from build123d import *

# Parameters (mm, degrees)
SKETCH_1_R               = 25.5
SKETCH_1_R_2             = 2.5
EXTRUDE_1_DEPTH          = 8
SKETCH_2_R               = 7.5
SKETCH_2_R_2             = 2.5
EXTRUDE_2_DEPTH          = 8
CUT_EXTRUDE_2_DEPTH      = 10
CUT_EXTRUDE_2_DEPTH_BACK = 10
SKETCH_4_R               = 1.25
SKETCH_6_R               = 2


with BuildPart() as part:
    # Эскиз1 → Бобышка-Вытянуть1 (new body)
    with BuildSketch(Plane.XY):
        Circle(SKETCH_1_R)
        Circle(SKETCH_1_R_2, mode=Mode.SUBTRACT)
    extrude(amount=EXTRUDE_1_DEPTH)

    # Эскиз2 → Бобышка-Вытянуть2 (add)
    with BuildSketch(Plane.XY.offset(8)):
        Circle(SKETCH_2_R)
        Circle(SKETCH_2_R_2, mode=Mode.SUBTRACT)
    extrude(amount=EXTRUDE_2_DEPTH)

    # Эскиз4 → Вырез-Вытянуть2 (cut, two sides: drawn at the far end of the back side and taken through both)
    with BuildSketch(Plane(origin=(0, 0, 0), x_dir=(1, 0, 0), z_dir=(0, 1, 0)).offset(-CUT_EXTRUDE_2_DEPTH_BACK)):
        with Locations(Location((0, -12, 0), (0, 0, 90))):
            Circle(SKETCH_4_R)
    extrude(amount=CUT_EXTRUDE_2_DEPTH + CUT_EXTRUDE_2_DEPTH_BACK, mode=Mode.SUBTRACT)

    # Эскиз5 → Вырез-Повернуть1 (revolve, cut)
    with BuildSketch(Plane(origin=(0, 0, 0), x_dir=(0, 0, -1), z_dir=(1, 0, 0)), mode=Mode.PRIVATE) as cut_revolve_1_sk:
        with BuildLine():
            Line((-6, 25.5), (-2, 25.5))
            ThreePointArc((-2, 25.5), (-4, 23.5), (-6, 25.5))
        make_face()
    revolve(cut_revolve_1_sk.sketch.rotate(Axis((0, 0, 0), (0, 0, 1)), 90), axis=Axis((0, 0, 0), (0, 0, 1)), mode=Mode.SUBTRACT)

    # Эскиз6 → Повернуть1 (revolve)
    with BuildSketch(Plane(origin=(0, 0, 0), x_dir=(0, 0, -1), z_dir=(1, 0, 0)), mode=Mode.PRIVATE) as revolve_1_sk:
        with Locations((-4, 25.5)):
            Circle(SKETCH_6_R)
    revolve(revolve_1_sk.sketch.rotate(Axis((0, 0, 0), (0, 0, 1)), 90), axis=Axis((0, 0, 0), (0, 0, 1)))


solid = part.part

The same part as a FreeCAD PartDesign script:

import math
import FreeCAD as App
import Part
import Sketcher

V = App.Vector

doc = App.newDocument("Part")
body = doc.addObject("PartDesign::Body", "Body")

# Sketch on XY plane
sketch1 = body.newObject("Sketcher::SketchObject", "Sketch")
sketch1.AttachmentSupport = (doc.getObject("XY_Plane"), [""])
sketch1.MapMode = "FlatFace"
sketch1.addGeometry(Part.Circle(V(0, 0, 0), V(0, 0, 1), 25.5), False)
sketch1.addGeometry(Part.Circle(V(0, 0, 0), V(0, 0, 1), 2.5), False)
sketch1.addConstraint(Sketcher.Constraint("Coincident", 0, 3, -1, 1))
sketch1.addConstraint(Sketcher.Constraint("Coincident", 1, 3, -1, 1))
sketch1.addConstraint(Sketcher.Constraint("Diameter", 0, 51.0))
sketch1.addConstraint(Sketcher.Constraint("Diameter", 1, 5.0))
pad1 = body.newObject("PartDesign::Pad", "Pad")
pad1.Profile = sketch1
pad1.Length = 8

# Sketch on XY plane
sketch2 = body.newObject("Sketcher::SketchObject", "Sketch001")
sketch2.AttachmentSupport = (doc.getObject("XY_Plane"), [""])
sketch2.MapMode = "FlatFace"
sketch2.AttachmentOffset = App.Placement(V(0, 0, 8), App.Rotation())
sketch2.addGeometry(Part.Circle(V(0, 0, 0), V(0, 0, 1), 7.5), False)
sketch2.addGeometry(Part.Circle(V(0, 0, 0), V(0, 0, 1), 2.5), False)
sketch2.addConstraint(Sketcher.Constraint("Coincident", 0, 3, -1, 1))
sketch2.addConstraint(Sketcher.Constraint("Coincident", 1, 3, -1, 1))
sketch2.addConstraint(Sketcher.Constraint("Diameter", 0, 15.0))
sketch2.addConstraint(Sketcher.Constraint("Diameter", 1, 5.0))
pad2 = body.newObject("PartDesign::Pad", "Pad001")
pad2.Profile = sketch2
pad2.Length = 8

# Sketch on XZ plane
sketch3 = body.newObject("Sketcher::SketchObject", "Sketch002")
sketch3.AttachmentSupport = (doc.getObject("XZ_Plane"), [""])
sketch3.MapMode = "FlatFace"
sketch3.addGeometry(Part.Circle(V(0, 12, 0), V(0, 0, 1), 1.2), False)
sketch3.addConstraint(Sketcher.Constraint("PointOnObject", 0, 3, -2))
sketch3.addConstraint(Sketcher.Constraint("Diameter", 0, 2.5))
sketch3.addConstraint(Sketcher.Constraint("DistanceY", -1, 1, 0, 3, 12.0))
pocket1 = body.newObject("PartDesign::Pocket", "Pocket")
pocket1.Profile = sketch3
pocket1.Type = "ThroughAll"
pocket1.Midplane = True

# Sketch on YZ plane
sketch4 = body.newObject("Sketcher::SketchObject", "Sketch003")
sketch4.AttachmentSupport = (doc.getObject("YZ_Plane"), [""])
sketch4.MapMode = "FlatFace"
sketch4.addGeometry(Part.LineSegment(V(25.5, 2, 0), V(25.5, 6, 0)), False)
sketch4.addGeometry(Part.ArcOfCircle(Part.Circle(V(25.5, 4, 0), V(0, 0, 1), 2), math.radians(90), math.radians(270)), False)
sketch4.addConstraint(Sketcher.Constraint("Coincident", 0, 1, 1, 2))
sketch4.addConstraint(Sketcher.Constraint("Coincident", 1, 1, 0, 2))
sketch4.addConstraint(Sketcher.Constraint("Vertical", 0))
sketch4.addConstraint(Sketcher.Constraint("Vertical", 1, 3, 0, 1))
sketch4.addConstraint(Sketcher.Constraint("Radius", 1, 2.0))
sketch4.addConstraint(Sketcher.Constraint("DistanceY", -1, 1, 1, 3, 4.0))
sketch4.addConstraint(Sketcher.Constraint("DistanceX", -1, 1, 1, 3, 25.5))
groove = body.newObject("PartDesign::Groove", "Groove")
groove.Profile = sketch4
groove.ReferenceAxis = (sketch4, ["V_Axis"])
groove.Angle = 360

# Sketch on YZ plane
sketch5 = body.newObject("Sketcher::SketchObject", "Sketch004")
sketch5.AttachmentSupport = (doc.getObject("YZ_Plane"), [""])
sketch5.MapMode = "FlatFace"
sketch5.addGeometry(Part.Circle(V(25.5, 4, 0), V(0, 0, 1), 2), False)
sketch5.addConstraint(Sketcher.Constraint("Diameter", 0, 4.0))
sketch5.addConstraint(Sketcher.Constraint("DistanceY", -1, 1, 0, 3, 4.0))
sketch5.addConstraint(Sketcher.Constraint("DistanceX", -1, 1, 0, 3, 25.5))
revolution = body.newObject("PartDesign::Revolution", "Revolution")
revolution.Profile = sketch5
revolution.ReferenceAxis = (sketch5, ["V_Axis"])
revolution.Angle = 360

doc.recompute()
